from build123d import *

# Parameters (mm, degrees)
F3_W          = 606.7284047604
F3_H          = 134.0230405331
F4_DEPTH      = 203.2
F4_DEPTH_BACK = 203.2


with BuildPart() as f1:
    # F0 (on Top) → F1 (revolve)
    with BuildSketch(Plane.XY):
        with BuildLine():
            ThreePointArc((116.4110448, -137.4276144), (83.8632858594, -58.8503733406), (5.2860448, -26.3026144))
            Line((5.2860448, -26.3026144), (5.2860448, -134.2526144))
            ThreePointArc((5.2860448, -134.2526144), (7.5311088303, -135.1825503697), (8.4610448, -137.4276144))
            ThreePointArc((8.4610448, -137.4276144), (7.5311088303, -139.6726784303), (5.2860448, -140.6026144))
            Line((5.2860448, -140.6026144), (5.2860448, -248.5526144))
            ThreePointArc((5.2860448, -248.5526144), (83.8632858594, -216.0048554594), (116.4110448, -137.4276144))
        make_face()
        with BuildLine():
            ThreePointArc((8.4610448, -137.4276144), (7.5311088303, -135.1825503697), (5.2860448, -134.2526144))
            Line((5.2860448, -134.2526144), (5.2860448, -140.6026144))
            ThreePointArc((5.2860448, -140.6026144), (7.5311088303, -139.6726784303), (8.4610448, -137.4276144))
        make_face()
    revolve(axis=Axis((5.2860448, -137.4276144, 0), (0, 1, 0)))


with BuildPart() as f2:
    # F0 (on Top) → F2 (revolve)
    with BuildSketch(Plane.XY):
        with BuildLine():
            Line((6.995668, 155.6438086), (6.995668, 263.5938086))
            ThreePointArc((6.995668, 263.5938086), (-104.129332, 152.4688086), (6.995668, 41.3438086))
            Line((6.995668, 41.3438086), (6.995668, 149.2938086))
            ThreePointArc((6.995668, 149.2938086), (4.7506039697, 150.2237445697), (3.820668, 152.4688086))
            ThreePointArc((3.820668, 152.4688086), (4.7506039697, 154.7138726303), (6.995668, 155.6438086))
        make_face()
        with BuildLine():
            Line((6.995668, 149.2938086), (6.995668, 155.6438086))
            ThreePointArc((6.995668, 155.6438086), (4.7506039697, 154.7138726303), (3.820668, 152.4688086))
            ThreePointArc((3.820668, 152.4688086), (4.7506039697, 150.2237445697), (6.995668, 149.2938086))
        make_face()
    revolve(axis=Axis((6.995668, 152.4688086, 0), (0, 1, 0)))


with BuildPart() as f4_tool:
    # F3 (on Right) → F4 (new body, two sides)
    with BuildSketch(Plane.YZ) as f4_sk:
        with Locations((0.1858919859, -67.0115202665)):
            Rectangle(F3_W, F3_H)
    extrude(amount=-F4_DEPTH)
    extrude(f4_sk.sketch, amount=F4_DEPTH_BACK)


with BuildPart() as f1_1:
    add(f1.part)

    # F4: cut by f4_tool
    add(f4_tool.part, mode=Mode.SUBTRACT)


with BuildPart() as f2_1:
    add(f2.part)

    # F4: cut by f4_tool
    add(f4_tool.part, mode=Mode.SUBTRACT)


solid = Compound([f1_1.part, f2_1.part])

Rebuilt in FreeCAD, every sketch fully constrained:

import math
import FreeCAD as App
import Part
import Sketcher
Q = App.Units.Quantity


def add_polygon(sketch, points):
    """Adds a closed chain of lines whose ends are joined by coincident constraints."""
    first, n = sketch.GeometryCount, len(points)
    for a, b in zip(points, points[1:] + points[:1]):
        sketch.addGeometry(Part.LineSegment(App.Vector(*a, 0), App.Vector(*b, 0)), False)
    for i in range(n):
        sketch.addConstraint(Sketcher.Constraint("Coincident", first + i, 2, first + (i + 1) % n, 1))

doc = App.newDocument("Part")
body = doc.addObject("PartDesign::Body", "Body")

sketch1 = doc.addObject("Sketcher::SketchObject", "Sketch")
body.addObject(sketch1)
sketch1.AttachmentSupport = (doc.XY_Plane, [""])
sketch1.MapMode = "FlatFace"
sketch1.addGeometry([
    Part.ArcOfCircle(Part.Circle(App.Vector(5, -137, 0), App.Vector(0, 0, 1), 111), math.radians(0), math.radians(90)),
    Part.LineSegment(App.Vector(5, -26, 0), App.Vector(5, -249, 0)),
    Part.ArcOfCircle(Part.Circle(App.Vector(5, -137, 0), App.Vector(0, 0, 1), 111), math.radians(-90), math.radians(0)),
], False)
sketch1.addGeometry(Part.LineSegment(App.Vector(5, -249, 0), App.Vector(5, -26, 0)), True)
sketch1.addConstraint([
    Sketcher.Constraint("Coincident", 0, 2, 1, 1),
    Sketcher.Constraint("Coincident", 1, 2, 2, 1),
    Sketcher.Constraint("Tangent", 2, 2, 0, 1),
    Sketcher.Constraint("Vertical", 1),
    Sketcher.Constraint("Vertical", 3),
    Sketcher.Constraint("Coincident", 3, 1, 1, 2),
    Sketcher.Constraint("Equal", 0, 2),
    Sketcher.Constraint("Horizontal", 0, 3, 2, 2),
    Sketcher.Constraint("Vertical", 2, 3, 0, 2),
    Sketcher.Constraint("Equal", 1, 3),
    Sketcher.Constraint("Radius", 0, Q("4.375 in")),
    Sketcher.Constraint("DistanceX", -1, 1, 0, 3, 5.286045),
    Sketcher.Constraint("DistanceY", 0, 3, -1, 1, 137.427614),
])
revolution = doc.addObject("PartDesign::Revolution", "Revolution")
body.addObject(revolution)
revolution.Profile = sketch1
revolution.ReferenceAxis = (sketch1, ["Axis0"])
revolution.Angle = 360
body2 = doc.addObject("PartDesign::Body", "Body001")

sketch2 = doc.addObject("Sketcher::SketchObject", "Sketch001")
body2.addObject(sketch2)
sketch2.AttachmentSupport = (doc.getObject("XY_Plane001"), [""])
sketch2.MapMode = "FlatFace"
sketch2.addGeometry([
    Part.ArcOfCircle(Part.Circle(App.Vector(7, 152, 0), App.Vector(0, 0, 1), 111), math.radians(90), math.radians(270)),
    Part.LineSegment(App.Vector(7, 41, 0), App.Vector(7, 264, 0)),
], False)
sketch2.addGeometry(Part.LineSegment(App.Vector(7, 41, 0), App.Vector(7, 264, 0)), True)
sketch2.addConstraint([
    Sketcher.Constraint("Coincident", 0, 1, 1, 2),
    Sketcher.Constraint("Coincident", 1, 1, 0, 2),
    Sketcher.Constraint("Vertical", 1),
    Sketcher.Constraint("Vertical", 2),
    Sketcher.Constraint("Coincident", 2, 1, 1, 1),
    Sketcher.Constraint("Equal", 1, 2),
    Sketcher.Constraint("Radius", 0, Q("4.375 in")),
    Sketcher.Constraint("DistanceX", -1, 1, 0, 3, 6.995668),
    Sketcher.Constraint("DistanceY", -1, 1, 0, 3, 152.468809),
    Sketcher.Constraint("DistanceX", -1, 1, 0, 1, 6.995668),
])
revolution2 = doc.addObject("PartDesign::Revolution", "Revolution001")
body2.addObject(revolution2)
revolution2.Profile = sketch2
revolution2.ReferenceAxis = (sketch2, ["Axis0"])
revolution2.Angle = 360
body3 = doc.addObject("PartDesign::Body", "Body002")

sketch3 = doc.addObject("Sketcher::SketchObject", "Sketch002")
body3.addObject(sketch3)
sketch3.AttachmentSupport = (doc.getObject("YZ_Plane002"), [""])
sketch3.MapMode = "FlatFace"
add_polygon(sketch3, [(-303, 0), (-303, -134), (304, -134), (304, 0)])
sketch3.addConstraint([
    Sketcher.Constraint("Vertical", 0),
    Sketcher.Constraint("Horizontal", 1),
    Sketcher.Constraint("Vertical", 2),
    Sketcher.Constraint("Horizontal", 3),
    Sketcher.Constraint("PointOnObject", 2, 2, -1),
    Sketcher.Constraint("DistanceY", 0, 2, 0, 1, 134.023041),
    Sketcher.Constraint("DistanceX", 1, 1, 1, 2, 606.728405),
    Sketcher.Constraint("DistanceX", 0, 2, -1, 1, 303.17831),
])
pad1 = doc.addObject("PartDesign::Pad", "Pad")
body3.addObject(pad1)
pad1.Profile = sketch3
pad1.Type = "TwoLengths"
pad1.Length = Q("8 in")
pad1.Length2 = Q("8 in")
pad1.Reversed = True
doc.recompute()

body4 = doc.addObject("PartDesign::Body", "Body003")
body4.BaseFeature = body3
boolean = doc.addObject("PartDesign::Boolean", "Boolean")
body.addObject(boolean)
boolean.Type = "Cut"
boolean.addObjects([body4])
doc.recompute()

boolean2 = doc.addObject("PartDesign::Boolean", "Boolean001")
body2.addObject(boolean2)
boolean2.Type = "Cut"
boolean2.addObjects([body3])

doc.recompute()
